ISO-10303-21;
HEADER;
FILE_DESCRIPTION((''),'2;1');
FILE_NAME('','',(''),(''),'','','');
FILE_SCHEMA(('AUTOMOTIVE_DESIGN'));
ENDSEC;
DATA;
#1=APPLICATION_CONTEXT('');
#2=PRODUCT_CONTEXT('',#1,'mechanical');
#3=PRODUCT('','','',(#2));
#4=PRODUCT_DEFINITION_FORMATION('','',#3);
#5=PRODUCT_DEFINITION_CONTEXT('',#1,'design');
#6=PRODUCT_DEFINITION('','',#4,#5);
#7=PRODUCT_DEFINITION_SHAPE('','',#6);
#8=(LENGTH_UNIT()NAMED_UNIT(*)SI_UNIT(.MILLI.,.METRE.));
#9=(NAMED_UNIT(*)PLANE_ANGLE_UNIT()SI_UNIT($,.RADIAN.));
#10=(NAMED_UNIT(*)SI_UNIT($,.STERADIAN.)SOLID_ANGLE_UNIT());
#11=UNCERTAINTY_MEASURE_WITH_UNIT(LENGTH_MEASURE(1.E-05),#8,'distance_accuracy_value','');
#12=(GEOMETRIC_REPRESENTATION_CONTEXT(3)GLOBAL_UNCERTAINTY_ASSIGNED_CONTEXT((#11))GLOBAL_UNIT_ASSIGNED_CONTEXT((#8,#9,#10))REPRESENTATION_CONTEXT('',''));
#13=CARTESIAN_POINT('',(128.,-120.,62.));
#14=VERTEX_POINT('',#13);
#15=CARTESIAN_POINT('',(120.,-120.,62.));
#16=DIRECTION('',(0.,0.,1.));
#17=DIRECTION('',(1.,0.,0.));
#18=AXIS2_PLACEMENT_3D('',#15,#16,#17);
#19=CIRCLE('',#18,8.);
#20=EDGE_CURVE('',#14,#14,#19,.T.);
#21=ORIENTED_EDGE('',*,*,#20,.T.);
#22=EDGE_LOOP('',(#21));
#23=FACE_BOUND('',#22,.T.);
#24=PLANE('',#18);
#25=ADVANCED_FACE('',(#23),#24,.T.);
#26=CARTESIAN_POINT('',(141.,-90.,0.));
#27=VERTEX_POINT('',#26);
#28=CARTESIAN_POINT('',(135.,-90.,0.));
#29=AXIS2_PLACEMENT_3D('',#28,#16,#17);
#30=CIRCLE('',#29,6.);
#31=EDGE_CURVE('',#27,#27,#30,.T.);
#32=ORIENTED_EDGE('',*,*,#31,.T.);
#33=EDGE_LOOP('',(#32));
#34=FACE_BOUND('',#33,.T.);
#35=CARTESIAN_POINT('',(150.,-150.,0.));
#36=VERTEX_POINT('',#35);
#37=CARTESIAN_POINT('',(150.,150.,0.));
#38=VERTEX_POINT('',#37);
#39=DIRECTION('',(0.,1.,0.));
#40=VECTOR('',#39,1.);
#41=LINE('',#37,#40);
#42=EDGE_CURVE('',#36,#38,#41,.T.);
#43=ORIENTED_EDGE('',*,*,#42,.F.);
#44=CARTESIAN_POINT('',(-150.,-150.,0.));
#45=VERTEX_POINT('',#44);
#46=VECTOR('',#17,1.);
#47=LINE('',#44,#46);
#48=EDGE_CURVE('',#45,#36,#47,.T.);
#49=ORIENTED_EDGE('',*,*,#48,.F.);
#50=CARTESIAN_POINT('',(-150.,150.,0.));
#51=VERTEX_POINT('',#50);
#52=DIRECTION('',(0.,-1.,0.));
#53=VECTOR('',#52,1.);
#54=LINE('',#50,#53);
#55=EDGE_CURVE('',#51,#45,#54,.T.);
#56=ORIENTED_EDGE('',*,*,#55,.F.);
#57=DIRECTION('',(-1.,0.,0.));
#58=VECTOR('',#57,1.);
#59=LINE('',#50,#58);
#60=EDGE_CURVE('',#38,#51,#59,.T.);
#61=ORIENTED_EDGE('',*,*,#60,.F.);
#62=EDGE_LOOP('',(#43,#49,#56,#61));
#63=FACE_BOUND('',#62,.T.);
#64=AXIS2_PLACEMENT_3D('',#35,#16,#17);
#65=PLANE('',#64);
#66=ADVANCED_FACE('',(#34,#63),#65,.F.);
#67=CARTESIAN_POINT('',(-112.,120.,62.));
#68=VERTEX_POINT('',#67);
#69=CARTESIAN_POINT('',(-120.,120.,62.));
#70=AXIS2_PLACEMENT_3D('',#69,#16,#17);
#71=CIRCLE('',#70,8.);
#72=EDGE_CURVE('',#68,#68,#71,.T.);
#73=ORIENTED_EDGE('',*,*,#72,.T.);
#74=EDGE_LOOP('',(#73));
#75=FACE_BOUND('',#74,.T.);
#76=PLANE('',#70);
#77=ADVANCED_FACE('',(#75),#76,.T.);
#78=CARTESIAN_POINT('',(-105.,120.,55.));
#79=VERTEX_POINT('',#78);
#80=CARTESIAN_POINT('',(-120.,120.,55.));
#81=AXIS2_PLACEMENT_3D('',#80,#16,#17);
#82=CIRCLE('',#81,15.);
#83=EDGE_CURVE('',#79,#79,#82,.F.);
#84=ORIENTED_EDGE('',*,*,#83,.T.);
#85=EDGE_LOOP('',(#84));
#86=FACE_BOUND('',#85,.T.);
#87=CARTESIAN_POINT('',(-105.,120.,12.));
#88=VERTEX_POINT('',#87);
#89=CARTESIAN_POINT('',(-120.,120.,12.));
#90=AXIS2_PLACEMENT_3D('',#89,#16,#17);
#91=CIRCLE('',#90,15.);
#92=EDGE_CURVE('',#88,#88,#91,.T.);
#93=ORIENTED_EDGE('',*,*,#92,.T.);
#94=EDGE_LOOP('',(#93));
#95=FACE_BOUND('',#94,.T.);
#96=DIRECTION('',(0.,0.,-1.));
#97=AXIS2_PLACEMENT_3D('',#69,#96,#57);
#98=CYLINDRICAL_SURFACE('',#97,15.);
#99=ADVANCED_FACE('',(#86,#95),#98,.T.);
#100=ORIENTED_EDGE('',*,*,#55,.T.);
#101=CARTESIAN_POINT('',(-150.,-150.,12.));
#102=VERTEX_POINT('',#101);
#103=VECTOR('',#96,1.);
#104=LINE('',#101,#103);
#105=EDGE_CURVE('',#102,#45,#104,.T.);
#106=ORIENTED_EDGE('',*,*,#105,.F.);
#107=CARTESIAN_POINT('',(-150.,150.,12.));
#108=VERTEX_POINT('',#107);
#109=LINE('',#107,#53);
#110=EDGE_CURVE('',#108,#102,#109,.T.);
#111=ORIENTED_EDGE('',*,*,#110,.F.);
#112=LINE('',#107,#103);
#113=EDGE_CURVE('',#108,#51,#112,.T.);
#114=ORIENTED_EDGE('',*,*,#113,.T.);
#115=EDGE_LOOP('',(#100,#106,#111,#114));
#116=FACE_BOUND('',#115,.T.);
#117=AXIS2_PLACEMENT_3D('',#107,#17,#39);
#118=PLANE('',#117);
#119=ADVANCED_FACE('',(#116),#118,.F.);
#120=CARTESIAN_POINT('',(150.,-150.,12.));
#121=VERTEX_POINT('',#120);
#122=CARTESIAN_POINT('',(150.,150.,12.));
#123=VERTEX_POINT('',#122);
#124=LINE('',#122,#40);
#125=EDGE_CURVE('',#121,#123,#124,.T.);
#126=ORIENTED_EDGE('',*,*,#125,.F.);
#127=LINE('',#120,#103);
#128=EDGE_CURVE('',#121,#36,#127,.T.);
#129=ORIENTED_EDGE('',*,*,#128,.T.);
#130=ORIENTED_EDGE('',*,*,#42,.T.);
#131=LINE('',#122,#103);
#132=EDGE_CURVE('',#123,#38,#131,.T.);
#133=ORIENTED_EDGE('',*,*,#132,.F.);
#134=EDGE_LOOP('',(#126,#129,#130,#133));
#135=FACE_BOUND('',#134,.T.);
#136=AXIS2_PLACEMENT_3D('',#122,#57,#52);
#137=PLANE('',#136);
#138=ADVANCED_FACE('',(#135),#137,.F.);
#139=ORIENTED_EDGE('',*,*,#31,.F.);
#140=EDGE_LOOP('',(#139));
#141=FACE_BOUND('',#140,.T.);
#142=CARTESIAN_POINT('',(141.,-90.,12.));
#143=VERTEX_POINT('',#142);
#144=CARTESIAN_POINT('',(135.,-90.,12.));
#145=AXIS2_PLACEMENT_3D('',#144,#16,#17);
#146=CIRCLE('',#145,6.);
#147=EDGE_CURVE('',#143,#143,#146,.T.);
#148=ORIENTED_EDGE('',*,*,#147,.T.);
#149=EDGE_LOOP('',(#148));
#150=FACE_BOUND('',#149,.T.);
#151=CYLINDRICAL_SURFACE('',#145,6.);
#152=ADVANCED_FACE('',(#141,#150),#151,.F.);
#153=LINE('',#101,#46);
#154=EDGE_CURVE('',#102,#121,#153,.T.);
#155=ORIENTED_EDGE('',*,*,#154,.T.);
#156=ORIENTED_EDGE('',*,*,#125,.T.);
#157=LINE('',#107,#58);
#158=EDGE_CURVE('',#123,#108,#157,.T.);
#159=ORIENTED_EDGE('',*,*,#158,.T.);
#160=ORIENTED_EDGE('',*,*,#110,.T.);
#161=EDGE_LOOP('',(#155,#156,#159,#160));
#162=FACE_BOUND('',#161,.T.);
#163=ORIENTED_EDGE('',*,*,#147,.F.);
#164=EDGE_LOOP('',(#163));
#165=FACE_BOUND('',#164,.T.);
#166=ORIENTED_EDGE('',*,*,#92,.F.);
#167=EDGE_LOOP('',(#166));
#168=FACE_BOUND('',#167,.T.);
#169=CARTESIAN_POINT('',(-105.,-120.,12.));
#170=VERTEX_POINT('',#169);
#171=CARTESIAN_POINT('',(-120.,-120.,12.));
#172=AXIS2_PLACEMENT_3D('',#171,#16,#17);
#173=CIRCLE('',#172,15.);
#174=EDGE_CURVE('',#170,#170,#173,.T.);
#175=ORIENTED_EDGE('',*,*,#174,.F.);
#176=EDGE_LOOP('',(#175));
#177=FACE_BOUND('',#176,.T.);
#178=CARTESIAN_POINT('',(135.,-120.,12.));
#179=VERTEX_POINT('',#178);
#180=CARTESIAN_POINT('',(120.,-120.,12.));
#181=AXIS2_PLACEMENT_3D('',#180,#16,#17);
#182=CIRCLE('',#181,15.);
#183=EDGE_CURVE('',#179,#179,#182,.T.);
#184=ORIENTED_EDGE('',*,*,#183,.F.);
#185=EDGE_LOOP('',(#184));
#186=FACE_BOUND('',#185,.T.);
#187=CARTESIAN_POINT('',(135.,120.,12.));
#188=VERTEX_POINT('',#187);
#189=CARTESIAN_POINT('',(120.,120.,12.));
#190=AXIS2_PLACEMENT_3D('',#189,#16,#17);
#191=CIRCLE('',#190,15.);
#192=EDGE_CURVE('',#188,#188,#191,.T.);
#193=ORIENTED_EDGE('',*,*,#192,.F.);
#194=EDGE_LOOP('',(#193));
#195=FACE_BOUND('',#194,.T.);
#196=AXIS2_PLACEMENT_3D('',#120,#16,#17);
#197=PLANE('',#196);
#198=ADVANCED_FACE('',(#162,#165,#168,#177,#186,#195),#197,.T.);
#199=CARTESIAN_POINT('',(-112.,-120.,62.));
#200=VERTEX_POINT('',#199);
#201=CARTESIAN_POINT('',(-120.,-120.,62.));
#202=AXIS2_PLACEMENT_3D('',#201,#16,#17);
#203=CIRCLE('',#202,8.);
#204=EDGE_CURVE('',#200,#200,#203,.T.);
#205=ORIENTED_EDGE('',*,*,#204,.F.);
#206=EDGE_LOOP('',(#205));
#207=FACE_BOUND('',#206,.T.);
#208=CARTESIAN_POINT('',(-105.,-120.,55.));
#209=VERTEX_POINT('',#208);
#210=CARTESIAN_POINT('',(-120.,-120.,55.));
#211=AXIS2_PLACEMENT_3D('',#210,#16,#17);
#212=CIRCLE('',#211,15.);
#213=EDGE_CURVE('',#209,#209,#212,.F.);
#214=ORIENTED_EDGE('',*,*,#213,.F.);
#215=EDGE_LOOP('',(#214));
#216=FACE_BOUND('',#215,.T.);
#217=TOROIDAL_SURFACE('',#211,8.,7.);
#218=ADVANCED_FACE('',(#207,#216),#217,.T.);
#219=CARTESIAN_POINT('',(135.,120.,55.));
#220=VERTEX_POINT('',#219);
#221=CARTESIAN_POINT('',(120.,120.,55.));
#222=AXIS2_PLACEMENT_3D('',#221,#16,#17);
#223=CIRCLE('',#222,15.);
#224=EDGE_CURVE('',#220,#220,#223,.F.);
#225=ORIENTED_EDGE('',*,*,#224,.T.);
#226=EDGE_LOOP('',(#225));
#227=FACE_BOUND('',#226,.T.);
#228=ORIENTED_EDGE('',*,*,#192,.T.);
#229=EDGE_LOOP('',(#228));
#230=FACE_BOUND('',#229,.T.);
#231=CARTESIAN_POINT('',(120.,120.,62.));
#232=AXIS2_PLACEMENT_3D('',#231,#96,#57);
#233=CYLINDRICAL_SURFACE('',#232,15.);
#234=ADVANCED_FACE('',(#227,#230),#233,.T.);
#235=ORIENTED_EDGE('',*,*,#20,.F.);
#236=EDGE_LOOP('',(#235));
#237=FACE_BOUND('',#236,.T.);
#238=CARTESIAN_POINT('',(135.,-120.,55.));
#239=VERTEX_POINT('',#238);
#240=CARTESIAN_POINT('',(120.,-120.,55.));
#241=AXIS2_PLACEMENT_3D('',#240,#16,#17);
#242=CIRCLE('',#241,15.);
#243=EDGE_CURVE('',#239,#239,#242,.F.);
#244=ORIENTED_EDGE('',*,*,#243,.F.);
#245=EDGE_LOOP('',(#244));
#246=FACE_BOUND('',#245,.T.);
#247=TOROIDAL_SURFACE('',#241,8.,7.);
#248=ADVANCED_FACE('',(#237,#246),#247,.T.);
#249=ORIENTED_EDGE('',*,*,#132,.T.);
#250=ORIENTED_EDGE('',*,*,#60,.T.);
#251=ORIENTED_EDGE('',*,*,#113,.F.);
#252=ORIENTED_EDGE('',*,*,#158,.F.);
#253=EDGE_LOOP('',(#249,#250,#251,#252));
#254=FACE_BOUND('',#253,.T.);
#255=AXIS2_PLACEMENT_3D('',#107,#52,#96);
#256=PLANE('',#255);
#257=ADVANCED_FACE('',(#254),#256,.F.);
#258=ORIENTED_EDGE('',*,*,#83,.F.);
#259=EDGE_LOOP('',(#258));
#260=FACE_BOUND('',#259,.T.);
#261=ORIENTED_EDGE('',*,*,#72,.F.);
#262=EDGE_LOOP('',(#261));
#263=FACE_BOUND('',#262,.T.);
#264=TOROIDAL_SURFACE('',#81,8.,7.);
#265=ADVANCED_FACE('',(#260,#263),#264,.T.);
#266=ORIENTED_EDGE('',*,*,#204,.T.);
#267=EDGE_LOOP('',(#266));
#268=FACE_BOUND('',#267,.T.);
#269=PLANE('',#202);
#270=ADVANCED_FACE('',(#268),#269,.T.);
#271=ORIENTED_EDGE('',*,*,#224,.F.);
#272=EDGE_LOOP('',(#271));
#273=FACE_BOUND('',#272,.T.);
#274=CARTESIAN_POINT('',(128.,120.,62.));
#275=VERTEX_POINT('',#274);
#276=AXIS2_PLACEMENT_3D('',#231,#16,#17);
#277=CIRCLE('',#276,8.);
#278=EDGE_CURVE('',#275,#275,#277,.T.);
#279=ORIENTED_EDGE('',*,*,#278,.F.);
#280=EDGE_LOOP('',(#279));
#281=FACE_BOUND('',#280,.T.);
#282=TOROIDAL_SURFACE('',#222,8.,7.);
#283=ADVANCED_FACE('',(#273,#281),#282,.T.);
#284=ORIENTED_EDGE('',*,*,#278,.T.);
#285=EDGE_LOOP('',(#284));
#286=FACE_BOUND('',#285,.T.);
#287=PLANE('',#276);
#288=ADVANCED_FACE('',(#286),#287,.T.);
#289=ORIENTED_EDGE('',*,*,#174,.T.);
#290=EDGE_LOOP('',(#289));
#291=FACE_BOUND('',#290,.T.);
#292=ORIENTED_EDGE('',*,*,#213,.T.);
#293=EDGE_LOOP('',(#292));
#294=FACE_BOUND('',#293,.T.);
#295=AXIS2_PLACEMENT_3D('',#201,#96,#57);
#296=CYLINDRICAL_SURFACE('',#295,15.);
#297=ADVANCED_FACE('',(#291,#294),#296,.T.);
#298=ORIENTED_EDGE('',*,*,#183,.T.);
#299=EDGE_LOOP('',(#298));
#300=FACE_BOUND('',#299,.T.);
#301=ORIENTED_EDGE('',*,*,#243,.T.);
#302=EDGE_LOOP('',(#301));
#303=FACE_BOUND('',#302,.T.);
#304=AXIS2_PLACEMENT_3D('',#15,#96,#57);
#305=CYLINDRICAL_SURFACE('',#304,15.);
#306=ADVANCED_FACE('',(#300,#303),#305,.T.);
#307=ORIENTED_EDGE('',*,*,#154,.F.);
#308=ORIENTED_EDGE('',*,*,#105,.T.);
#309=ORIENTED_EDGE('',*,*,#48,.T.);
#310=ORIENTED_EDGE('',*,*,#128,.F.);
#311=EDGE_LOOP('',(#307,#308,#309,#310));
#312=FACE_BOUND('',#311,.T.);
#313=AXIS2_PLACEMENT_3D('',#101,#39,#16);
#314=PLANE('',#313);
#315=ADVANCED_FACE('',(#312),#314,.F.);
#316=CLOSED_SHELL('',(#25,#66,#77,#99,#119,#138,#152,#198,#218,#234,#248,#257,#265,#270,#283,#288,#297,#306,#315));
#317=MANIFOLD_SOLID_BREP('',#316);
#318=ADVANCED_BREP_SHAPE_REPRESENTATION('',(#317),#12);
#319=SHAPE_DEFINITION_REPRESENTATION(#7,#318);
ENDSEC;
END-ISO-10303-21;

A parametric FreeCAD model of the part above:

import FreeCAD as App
import Part
import Sketcher
from FreeCAD import Vector


def edges_at(feature, points):
    """Names of the edges that pass closest to the given points."""
    edges = feature.Shape.Edges
    near = lambda p: min(range(len(edges)), key=lambda i: edges[i].distToShape(Part.Vertex(*p))[0])
    return sorted({f"Edge{near(p) + 1}" for p in points})


def add_polygon(sketch, points):
    """Adds a closed chain of lines whose ends are joined by coincident constraints."""
    first, n = sketch.GeometryCount, len(points)
    for a, b in zip(points, points[1:] + points[:1]):
        sketch.addGeometry(Part.LineSegment(App.Vector(*a, 0), App.Vector(*b, 0)), False)
    for i in range(n):
        sketch.addConstraint(Sketcher.Constraint("Coincident", first + i, 2, first + (i + 1) % n, 1))

doc = App.newDocument("Part")
body = doc.addObject("PartDesign::Body", "Body")

sketch1 = body.newObject("Sketcher::SketchObject", "Sketch")
sketch1.AttachmentSupport = (doc.getObject("XY_Plane"), [""])
sketch1.MapMode = "FlatFace"
add_polygon(sketch1, [(-150, 150), (-150, -150), (150, -150), (150, 150)])
sketch1.addConstraint([
    Sketcher.Constraint("Vertical", 0),
    Sketcher.Constraint("Horizontal", 1),
    Sketcher.Constraint("Vertical", 2),
    Sketcher.Constraint("Horizontal", 3),
    Sketcher.Constraint("Symmetric", 0, 2, 2, 2, -1, 1),
    Sketcher.Constraint("Equal", 3, 0),
    Sketcher.Constraint("DistanceX", 1, 1, 1, 2, 300.0),
])
pad1 = body.newObject("PartDesign::Pad", "Pad")
pad1.Profile = sketch1
pad1.Length = 12

sketch2 = body.newObject("Sketcher::SketchObject", "Sketch001")
sketch2.AttachmentSupport = (doc.getObject("XY_Plane"), [""])
sketch2.MapMode = "FlatFace"
sketch2.AttachmentOffset = App.Placement(Vector(0, 0, 12), App.Rotation())
sketch2.addGeometry([
    Part.Circle(Vector(120, -120, 0), Vector(0, 0, 1), 15),
    Part.Circle(Vector(-120, -120, 0), Vector(0, 0, 1), 15),
    Part.Circle(Vector(-120, 120, 0), Vector(0, 0, 1), 15),
    Part.Circle(Vector(120, 120, 0), Vector(0, 0, 1), 15),
], False)
sketch2.addConstraint([
    Sketcher.Constraint("Equal", 0, 1),
    Sketcher.Constraint("Equal", 1, 2),
    Sketcher.Constraint("Equal", 2, 3),
    Sketcher.Constraint("Symmetric", 0, 3, 2, 3, -1, 1),
    Sketcher.Constraint("Symmetric", 1, 3, 3, 3, -1, 1),
    Sketcher.Constraint("Symmetric", 0, 3, 1, 3, -2),
    Sketcher.Constraint("Diameter", 0, 30.0),
    Sketcher.Constraint("DistanceX", -1, 1, 0, 3, 120.0),
    Sketcher.Constraint("DistanceY", 0, 3, -1, 1, 120.0),
])
pad2 = body.newObject("PartDesign::Pad", "Pad001")
pad2.Profile = sketch2
pad2.Length = 50
doc.recompute()

fillet = body.newObject("PartDesign::Fillet", "Fillet")
fillet.Base = (pad2, edges_at(pad2, [
    (-135, -120, 62),
    (105, -120, 62),
    (-135, 120, 62),
    (105, 120, 62),
]))
fillet.Radius = 7

sketch3 = body.newObject("Sketcher::SketchObject", "Sketch002")
sketch3.AttachmentSupport = (doc.getObject("XY_Plane"), [""])
sketch3.MapMode = "FlatFace"
sketch3.AttachmentOffset = App.Placement(Vector(0, 0, 12), App.Rotation())
sketch3.addGeometry(Part.Circle(Vector(135, -90, 0), Vector(0, 0, 1), 6), False)
sketch3.addConstraint([
    Sketcher.Constraint("Diameter", 0, 12.0),
    Sketcher.Constraint("DistanceX", -1, 1, 0, 3, 135.0),
    Sketcher.Constraint("DistanceY", 0, 3, -1, 1, 90.0),
])
doc.recompute()
hole = body.newObject("PartDesign::Hole", "Hole")
hole.Profile = sketch3
hole.ThreadType = "None"
hole.Diameter = 12
hole.DepthType = "ThroughAll"

doc.recompute()
